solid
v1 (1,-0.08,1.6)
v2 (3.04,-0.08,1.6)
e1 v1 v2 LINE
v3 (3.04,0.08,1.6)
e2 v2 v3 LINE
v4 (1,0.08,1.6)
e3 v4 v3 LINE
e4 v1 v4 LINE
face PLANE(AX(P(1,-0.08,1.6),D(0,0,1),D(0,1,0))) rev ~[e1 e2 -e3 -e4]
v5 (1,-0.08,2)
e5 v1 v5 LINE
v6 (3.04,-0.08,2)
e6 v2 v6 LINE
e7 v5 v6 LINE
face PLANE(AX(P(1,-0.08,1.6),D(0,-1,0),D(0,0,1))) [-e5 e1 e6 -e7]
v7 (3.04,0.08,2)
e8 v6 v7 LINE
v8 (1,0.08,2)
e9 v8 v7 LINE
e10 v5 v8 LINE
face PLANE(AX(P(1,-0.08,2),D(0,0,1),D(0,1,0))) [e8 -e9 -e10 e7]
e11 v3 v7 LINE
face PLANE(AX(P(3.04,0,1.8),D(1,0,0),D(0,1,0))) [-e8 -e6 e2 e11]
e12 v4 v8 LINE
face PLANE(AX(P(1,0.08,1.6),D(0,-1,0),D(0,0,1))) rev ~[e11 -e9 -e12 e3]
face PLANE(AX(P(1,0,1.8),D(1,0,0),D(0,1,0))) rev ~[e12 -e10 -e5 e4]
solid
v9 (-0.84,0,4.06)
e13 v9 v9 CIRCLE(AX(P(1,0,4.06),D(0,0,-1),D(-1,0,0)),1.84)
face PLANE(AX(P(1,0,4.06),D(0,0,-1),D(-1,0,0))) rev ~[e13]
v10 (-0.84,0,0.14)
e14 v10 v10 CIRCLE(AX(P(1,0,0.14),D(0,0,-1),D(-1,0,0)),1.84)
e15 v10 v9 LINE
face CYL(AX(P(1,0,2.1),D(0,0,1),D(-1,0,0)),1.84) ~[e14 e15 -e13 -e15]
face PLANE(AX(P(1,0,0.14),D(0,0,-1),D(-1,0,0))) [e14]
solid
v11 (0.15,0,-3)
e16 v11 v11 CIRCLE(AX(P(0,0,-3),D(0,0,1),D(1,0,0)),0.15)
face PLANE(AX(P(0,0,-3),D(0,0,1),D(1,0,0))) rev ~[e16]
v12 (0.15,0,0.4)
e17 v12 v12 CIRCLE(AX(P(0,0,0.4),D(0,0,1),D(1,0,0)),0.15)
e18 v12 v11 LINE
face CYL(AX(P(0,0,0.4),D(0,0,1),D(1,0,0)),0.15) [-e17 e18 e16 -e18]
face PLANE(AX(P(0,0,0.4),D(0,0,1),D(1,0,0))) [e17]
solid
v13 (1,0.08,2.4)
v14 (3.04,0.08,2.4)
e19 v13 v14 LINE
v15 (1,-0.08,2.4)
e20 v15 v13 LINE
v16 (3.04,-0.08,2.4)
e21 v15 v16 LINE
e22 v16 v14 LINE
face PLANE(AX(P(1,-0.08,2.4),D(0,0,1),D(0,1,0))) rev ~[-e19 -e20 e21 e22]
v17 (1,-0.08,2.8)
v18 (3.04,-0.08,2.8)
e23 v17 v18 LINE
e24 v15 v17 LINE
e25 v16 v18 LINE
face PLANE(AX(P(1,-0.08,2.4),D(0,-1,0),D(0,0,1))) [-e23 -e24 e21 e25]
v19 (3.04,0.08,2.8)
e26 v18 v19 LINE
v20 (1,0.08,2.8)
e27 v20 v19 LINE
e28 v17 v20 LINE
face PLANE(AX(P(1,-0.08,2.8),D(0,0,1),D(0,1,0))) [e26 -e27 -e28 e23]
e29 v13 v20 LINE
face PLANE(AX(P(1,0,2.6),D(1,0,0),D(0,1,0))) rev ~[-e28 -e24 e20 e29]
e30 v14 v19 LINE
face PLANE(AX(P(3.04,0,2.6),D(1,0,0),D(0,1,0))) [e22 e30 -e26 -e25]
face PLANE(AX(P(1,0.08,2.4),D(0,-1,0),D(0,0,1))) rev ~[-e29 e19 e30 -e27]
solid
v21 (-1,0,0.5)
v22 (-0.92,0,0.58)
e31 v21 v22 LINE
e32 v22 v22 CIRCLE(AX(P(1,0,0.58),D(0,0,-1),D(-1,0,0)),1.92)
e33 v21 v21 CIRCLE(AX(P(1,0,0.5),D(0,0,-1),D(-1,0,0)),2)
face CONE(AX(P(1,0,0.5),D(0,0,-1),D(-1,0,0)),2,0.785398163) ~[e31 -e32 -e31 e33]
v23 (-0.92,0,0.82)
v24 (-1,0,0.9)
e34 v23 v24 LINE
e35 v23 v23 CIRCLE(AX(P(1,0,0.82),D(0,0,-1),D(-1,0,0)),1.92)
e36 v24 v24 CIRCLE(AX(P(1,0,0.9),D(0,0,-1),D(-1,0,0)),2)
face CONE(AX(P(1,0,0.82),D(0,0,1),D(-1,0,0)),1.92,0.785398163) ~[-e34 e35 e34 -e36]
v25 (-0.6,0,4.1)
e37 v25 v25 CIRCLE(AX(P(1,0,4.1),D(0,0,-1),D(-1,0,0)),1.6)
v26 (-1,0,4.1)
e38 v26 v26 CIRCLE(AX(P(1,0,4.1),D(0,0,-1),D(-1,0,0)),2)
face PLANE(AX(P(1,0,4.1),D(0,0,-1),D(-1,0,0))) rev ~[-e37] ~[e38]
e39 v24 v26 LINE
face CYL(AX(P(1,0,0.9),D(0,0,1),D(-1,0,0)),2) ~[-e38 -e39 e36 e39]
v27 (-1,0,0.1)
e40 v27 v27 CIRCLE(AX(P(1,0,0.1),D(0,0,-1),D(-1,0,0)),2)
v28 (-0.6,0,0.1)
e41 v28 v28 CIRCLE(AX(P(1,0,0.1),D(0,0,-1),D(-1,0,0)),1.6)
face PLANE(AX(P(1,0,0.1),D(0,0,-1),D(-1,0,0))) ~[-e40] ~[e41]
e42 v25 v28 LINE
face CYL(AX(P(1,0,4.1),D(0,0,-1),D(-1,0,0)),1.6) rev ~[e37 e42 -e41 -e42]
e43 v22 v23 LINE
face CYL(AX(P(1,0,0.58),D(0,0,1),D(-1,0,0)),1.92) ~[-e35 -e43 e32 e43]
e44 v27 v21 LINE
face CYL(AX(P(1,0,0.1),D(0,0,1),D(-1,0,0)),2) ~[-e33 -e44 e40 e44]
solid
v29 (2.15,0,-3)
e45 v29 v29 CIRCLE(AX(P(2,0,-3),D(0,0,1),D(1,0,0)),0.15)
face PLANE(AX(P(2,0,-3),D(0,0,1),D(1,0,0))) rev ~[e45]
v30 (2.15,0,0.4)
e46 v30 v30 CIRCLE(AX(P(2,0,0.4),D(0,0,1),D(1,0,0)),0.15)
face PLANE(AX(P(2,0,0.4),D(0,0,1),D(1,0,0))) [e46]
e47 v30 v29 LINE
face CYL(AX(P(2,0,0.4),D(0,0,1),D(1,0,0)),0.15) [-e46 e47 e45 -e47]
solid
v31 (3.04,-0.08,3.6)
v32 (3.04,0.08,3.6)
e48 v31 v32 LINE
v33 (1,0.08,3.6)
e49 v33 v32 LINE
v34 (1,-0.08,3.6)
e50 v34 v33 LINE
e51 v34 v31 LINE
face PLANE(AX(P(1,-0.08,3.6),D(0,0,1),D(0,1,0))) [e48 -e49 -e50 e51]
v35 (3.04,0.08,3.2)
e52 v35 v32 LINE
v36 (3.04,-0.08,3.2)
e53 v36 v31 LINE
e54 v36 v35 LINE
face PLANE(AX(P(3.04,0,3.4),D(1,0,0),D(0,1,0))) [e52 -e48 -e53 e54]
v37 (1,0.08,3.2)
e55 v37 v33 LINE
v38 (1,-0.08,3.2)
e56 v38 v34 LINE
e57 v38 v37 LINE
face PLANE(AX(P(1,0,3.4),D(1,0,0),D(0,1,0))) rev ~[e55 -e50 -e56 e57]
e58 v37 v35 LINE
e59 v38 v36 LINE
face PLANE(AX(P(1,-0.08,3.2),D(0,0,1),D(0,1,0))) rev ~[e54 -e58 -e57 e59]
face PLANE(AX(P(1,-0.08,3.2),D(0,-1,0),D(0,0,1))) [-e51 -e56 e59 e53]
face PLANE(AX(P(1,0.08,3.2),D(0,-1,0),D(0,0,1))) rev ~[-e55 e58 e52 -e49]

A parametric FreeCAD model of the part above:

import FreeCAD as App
import Part
import Sketcher
from FreeCAD import Vector
Q = App.Units.Quantity


def add_polygon(sketch, points):
    """Adds a closed chain of lines whose ends are joined by coincident constraints."""
    first, n = sketch.GeometryCount, len(points)
    for a, b in zip(points, points[1:] + points[:1]):
        sketch.addGeometry(Part.LineSegment(App.Vector(*a, 0), App.Vector(*b, 0)), False)
    for i in range(n):
        sketch.addConstraint(Sketcher.Constraint("Coincident", first + i, 2, first + (i + 1) % n, 1))

doc = App.newDocument("Part")
params = doc.addObject("Spreadsheet::Sheet", "Params")
for row, (alias, value) in enumerate([
    ("sketch1_height", "4 mm"),
    ("sketch1_width", "0.4 mm"),
    ("sketch1_height2", "3.2 mm"),
    ("sketch1_height3", "0.24 mm"),
    ("revolution_angle", "360 deg"),
    ("sketch2_width", "1.84 mm"),
    ("sketch2_height", "3.92 mm"),
    ("revolution2_angle", "360 deg"),
    ("sketch3_diameter", "0.3 mm"),
    ("pad1_length", "3.4 mm"),
    ("sketch4_height", "0.4 mm"),
    ("sketch4_width", "0.16 mm"),
    ("pad2_length", "2.04 mm"),
], start=1):
    params.set(f"A{row}", alias)
    params.set(f"B{row}", "=" + value)
    params.setAlias(f"B{row}", alias)

body = doc.addObject("PartDesign::Body", "Body")

# Sketch on XZ plane
sketch1 = body.newObject("Sketcher::SketchObject", "Sketch")
sketch1.AttachmentSupport = (doc.getObject("XZ_Plane"), [""])
sketch1.MapMode = "FlatFace"
add_polygon(sketch1, [(-1, 0.5), (-1, 0.1), (-0.6, 0.1), (-0.6, 4.1), (-1, 4.1), (-1, 0.9), (-0.92, 0.82), (-0.92, 0.58)])  # lines 0-7
sketch1.addGeometry(Part.LineSegment(Vector(1, 4.1, 0), Vector(1, 0.1, 0)), True)  # axis
sketch1.addConstraint([
    Sketcher.Constraint("Vertical", 0),
    Sketcher.Constraint("Horizontal", 1),
    Sketcher.Constraint("Vertical", 2),
    Sketcher.Constraint("Horizontal", 3),
    Sketcher.Constraint("Vertical", 4),
    Sketcher.Constraint("Vertical", 6),
    Sketcher.Constraint("Vertical", 8),
    Sketcher.Constraint("Symmetric", 3, 2, 8, 1, -2),
    Sketcher.Constraint("Symmetric", 0, 2, 8, 2, -2),
    Sketcher.Constraint("Perpendicular", 5, 7),
    Sketcher.Constraint("Equal", 3, 0),
    Sketcher.Constraint("Equal", 5, 7),
    Sketcher.Constraint("DistanceY", 2, 1, 2, 2, Q("4 mm")),
    Sketcher.Constraint("DistanceX", 1, 1, 1, 2, Q("0.4 mm")),
    Sketcher.Constraint("DistanceY", 4, 2, 4, 1, Q("3.2 mm")),
    Sketcher.Constraint("DistanceX", 0, 2, -1, 1, Q("1 mm")),
    Sketcher.Constraint("DistanceY", 6, 2, 6, 1, Q("0.24 mm")),
    Sketcher.Constraint("DistanceY", -1, 1, 0, 2, Q("0.1 mm")),
])
sketch1.setExpression("Constraints[20]", "Params.sketch1_height")
sketch1.setExpression("Constraints[21]", "Params.sketch1_width")
sketch1.setExpression("Constraints[22]", "Params.sketch1_height2")
sketch1.setExpression("Constraints[24]", "Params.sketch1_height3")
revolution = body.newObject("PartDesign::Revolution", "Revolution")
revolution.Profile = sketch1
revolution.ReferenceAxis = (sketch1, ["Axis0"])
revolution.setExpression("Angle", "Params.revolution_angle")
body2 = doc.addObject("PartDesign::Body", "Body001")

# Sketch on XZ plane
sketch2 = body2.newObject("Sketcher::SketchObject", "Sketch001")
sketch2.AttachmentSupport = (doc.getObject("XZ_Plane001"), [""])
sketch2.MapMode = "FlatFace"
add_polygon(sketch2, [(-0.84, 4.06), (-0.84, 0.14), (1, 0.14), (1, 4.06)])  # lines 0-3
sketch2.addGeometry(Part.LineSegment(Vector(1, 4.06, 0), Vector(1, 0.14, 0)), True)  # axis
sketch2.addConstraint([
    Sketcher.Constraint("Vertical", 0),
    Sketcher.Constraint("Horizontal", 1),
    Sketcher.Constraint("Vertical", 2),
    Sketcher.Constraint("Horizontal", 3),
    Sketcher.Constraint("Vertical", 4),
    Sketcher.Constraint("Coincident", 4, 1, 2, 2),
    Sketcher.Constraint("Horizontal", 0, 2, 4, 2),
    Sketcher.Constraint("DistanceX", -1, 1, 1, 2, Q("1 mm")),
    Sketcher.Constraint("DistanceX", 1, 1, 1, 2, Q("1.84 mm")),
    Sketcher.Constraint("DistanceY", 0, 2, 0, 1, Q("3.92 mm")),
    Sketcher.Constraint("DistanceY", -1, 1, 0, 2, Q("0.14 mm")),
])
sketch2.setExpression("Constraints[12]", "Params.sketch2_width")
sketch2.setExpression("Constraints[13]", "Params.sketch2_height")
revolution2 = body2.newObject("PartDesign::Revolution", "Revolution001")
revolution2.Profile = sketch2
revolution2.ReferenceAxis = (sketch2, ["Axis0"])
revolution2.setExpression("Angle", "Params.revolution2_angle")
body3 = doc.addObject("PartDesign::Body", "Body002")
body3.AllowCompound = True

# Sketch on XY plane
sketch3 = body3.newObject("Sketcher::SketchObject", "Sketch002")
sketch3.AttachmentSupport = (doc.getObject("XY_Plane002"), [""])
sketch3.MapMode = "FlatFace"
sketch3.AttachmentOffset = App.Placement(Vector(0, 0, 0.4), App.Rotation())
sketch3.addGeometry([
    Part.Circle(Vector(0, 0, 0), Vector(0, 0, 1), 0.15),
    Part.Circle(Vector(2, 0, 0), Vector(0, 0, 1), 0.15),
], False)
sketch3.addConstraint([
    Sketcher.Constraint("Coincident", 0, 3, -1, 1),
    Sketcher.Constraint("Equal", 0, 1),
    Sketcher.Constraint("PointOnObject", 1, 3, -1),
    Sketcher.Constraint("Diameter", 0, Q("0.3 mm")),
    Sketcher.Constraint("DistanceX", -1, 1, 1, 3, Q("2 mm")),
])
sketch3.setExpression("Constraints[3]", "Params.sketch3_diameter")
pad1 = body3.newObject("PartDesign::Pad", "Pad")
pad1.Profile = sketch3
pad1.setExpression("Length", "Params.pad1_length")
pad1.Reversed = True
body4 = doc.addObject("PartDesign::Body", "Body003")
body4.AllowCompound = True

# Sketch on YZ plane
sketch4 = body4.newObject("Sketcher::SketchObject", "Sketch003")
sketch4.AttachmentSupport = (doc.getObject("YZ_Plane003"), [""])
sketch4.MapMode = "FlatFace"
sketch4.AttachmentOffset = App.Placement(Vector(0, 0, 1), App.Rotation())
add_polygon(sketch4, [(-0.08, 2), (-0.08, 1.6), (0.08, 1.6), (0.08, 2)])  # lines 0-3
add_polygon(sketch4, [(-0.08, 2.8), (-0.08, 2.4), (0.08, 2.4), (0.08, 2.8)])  # lines 4-7
add_polygon(sketch4, [(-0.08, 3.6), (-0.08, 3.2), (0.08, 3.2), (0.08, 3.6)])  # lines 8-11
sketch4.addConstraint([
    Sketcher.Constraint("Vertical", 0),
    Sketcher.Constraint("Horizontal", 1),
    Sketcher.Constraint("Vertical", 2),
    Sketcher.Constraint("Horizontal", 3),
    Sketcher.Constraint("Vertical", 4),
    Sketcher.Constraint("Horizontal", 5),
    Sketcher.Constraint("Vertical", 6),
    Sketcher.Constraint("Horizontal", 7),
    Sketcher.Constraint("Vertical", 8),
    Sketcher.Constraint("Horizontal", 9),
    Sketcher.Constraint("Vertical", 10),
    Sketcher.Constraint("Horizontal", 11),
    Sketcher.Constraint("Vertical", 3, 2, 4, 2),
    Sketcher.Constraint("Vertical", 2, 2, 5, 2),
    Sketcher.Constraint("Vertical", 7, 2, 8, 2),
    Sketcher.Constraint("Vertical", 6, 2, 9, 2),
    Sketcher.Constraint("Equal", 2, 4),
    Sketcher.Constraint("Equal", 6, 8),
    Sketcher.Constraint("DistanceY", 0, 2, 0, 1, Q("0.4 mm")),
    Sketcher.Constraint("DistanceY", -1, 1, 2, 2, Q("2 mm")),
    Sketcher.Constraint("DistanceX", 1, 1, 1, 2, Q("0.16 mm")),
    Sketcher.Constraint("DistanceY", -1, 1, 4, 2, Q("2.4 mm")),
    Sketcher.Constraint("DistanceY", -1, 1, 8, 2, Q("3.2 mm")),
    Sketcher.Constraint("DistanceX", 0, 2, -1, 1, Q("0.08 mm")),
])
sketch4.setExpression("Constraints[30]", "Params.sketch4_height")
sketch4.setExpression("Constraints[32]", "Params.sketch4_width")
pad2 = body4.newObject("PartDesign::Pad", "Pad001")
pad2.Profile = sketch4
pad2.setExpression("Length", "Params.pad2_length")

doc.recompute()
